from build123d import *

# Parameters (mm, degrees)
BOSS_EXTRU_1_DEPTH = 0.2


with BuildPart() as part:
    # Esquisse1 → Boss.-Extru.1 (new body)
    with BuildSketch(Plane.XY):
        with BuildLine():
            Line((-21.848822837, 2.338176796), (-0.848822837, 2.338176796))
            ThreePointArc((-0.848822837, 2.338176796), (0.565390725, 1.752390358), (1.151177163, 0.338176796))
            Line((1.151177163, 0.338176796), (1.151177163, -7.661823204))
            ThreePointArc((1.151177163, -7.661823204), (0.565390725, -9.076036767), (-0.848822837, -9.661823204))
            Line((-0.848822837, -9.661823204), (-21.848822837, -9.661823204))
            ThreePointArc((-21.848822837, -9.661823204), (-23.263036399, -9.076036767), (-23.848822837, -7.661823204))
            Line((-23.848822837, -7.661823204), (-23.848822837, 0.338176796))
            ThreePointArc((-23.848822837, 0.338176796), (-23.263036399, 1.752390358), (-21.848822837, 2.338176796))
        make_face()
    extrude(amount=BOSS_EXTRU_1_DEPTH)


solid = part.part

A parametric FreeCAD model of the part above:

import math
import FreeCAD as App
import Part
import Sketcher

V = App.Vector
Q = App.Units.Quantity

doc = App.newDocument("Part")
params = doc.addObject("Spreadsheet::Sheet", "Params")
for row, (alias, value) in enumerate([
    ("sketch1_radius", "2 mm"),
    ("sketch1_width", "21 mm"),
    ("sketch1_height", "8 mm"),
    ("pad1_length", "0.2 mm"),
], start=1):
    params.set(f"A{row}", alias)
    params.set(f"B{row}", "=" + value)
    params.setAlias(f"B{row}", alias)

body = doc.addObject("PartDesign::Body", "Body")

# Sketch on XY plane
sketch1 = body.newObject("Sketcher::SketchObject", "Sketch")
sketch1.AttachmentSupport = (doc.getObject("XY_Plane"), [""])
sketch1.MapMode = "FlatFace"
sketch1.addGeometry(Part.LineSegment(V(-0.8, 2.3, 0), V(-21.8, 2.3, 0)), False)
sketch1.addGeometry(Part.ArcOfCircle(Part.Circle(V(-21.8, 0.3, 0), V(0, 0, 1), 2), math.radians(90), math.radians(180)), False)
sketch1.addGeometry(Part.LineSegment(V(-23.8, 0.3, 0), V(-23.8, -7.7, 0)), False)
sketch1.addGeometry(Part.ArcOfCircle(Part.Circle(V(-21.8, -7.7, 0), V(0, 0, 1), 2), math.radians(180), math.radians(270)), False)
sketch1.addGeometry(Part.LineSegment(V(-21.8, -9.7, 0), V(-0.8, -9.7, 0)), False)
sketch1.addGeometry(Part.ArcOfCircle(Part.Circle(V(-0.8, -7.7, 0), V(0, 0, 1), 2), math.radians(-90), math.radians(0)), False)
sketch1.addGeometry(Part.LineSegment(V(1.2, -7.7, 0), V(1.2, 0.3, 0)), False)
sketch1.addGeometry(Part.ArcOfCircle(Part.Circle(V(-0.8, 0.3, 0), V(0, 0, 1), 2), math.radians(0), math.radians(90)), False)
sketch1.addConstraint(Sketcher.Constraint("Tangent", 0, 2, 1, 1))
sketch1.addConstraint(Sketcher.Constraint("Tangent", 1, 2, 2, 1))
sketch1.addConstraint(Sketcher.Constraint("Tangent", 2, 2, 3, 1))
sketch1.addConstraint(Sketcher.Constraint("Tangent", 3, 2, 4, 1))
sketch1.addConstraint(Sketcher.Constraint("Tangent", 4, 2, 5, 1))
sketch1.addConstraint(Sketcher.Constraint("Tangent", 5, 2, 6, 1))
sketch1.addConstraint(Sketcher.Constraint("Tangent", 6, 2, 7, 1))
sketch1.addConstraint(Sketcher.Constraint("Tangent", 7, 2, 0, 1))
sketch1.addConstraint(Sketcher.Constraint("Horizontal", 0))
sketch1.addConstraint(Sketcher.Constraint("Vertical", 2))
sketch1.addConstraint(Sketcher.Constraint("Horizontal", 4))
sketch1.addConstraint(Sketcher.Constraint("Vertical", 6))
sketch1.addConstraint(Sketcher.Constraint("Equal", 1, 3))
sketch1.addConstraint(Sketcher.Constraint("Equal", 3, 5))
sketch1.addConstraint(Sketcher.Constraint("Equal", 5, 7))
sketch1.addConstraint(Sketcher.Constraint("Radius", 1, Q("2 mm")))
sketch1.addConstraint(Sketcher.Constraint("DistanceX", 0, 2, 0, 1, Q("21 mm")))
sketch1.addConstraint(Sketcher.Constraint("DistanceY", 2, 2, 2, 1, Q("8 mm")))
sketch1.addConstraint(Sketcher.Constraint("DistanceX", 1, 3, -1, 1, Q("21.848823 mm")))
sketch1.addConstraint(Sketcher.Constraint("DistanceY", -1, 1, 1, 3, Q("0.338177 mm")))
sketch1.setExpression("Constraints[15]", "Params.sketch1_radius")
sketch1.setExpression("Constraints[16]", "Params.sketch1_width")
sketch1.setExpression("Constraints[17]", "Params.sketch1_height")
pad1 = body.newObject("PartDesign::Pad", "Pad")
pad1.Profile = sketch1
pad1.setExpression("Length", "Params.pad1_length")

doc.recompute()
